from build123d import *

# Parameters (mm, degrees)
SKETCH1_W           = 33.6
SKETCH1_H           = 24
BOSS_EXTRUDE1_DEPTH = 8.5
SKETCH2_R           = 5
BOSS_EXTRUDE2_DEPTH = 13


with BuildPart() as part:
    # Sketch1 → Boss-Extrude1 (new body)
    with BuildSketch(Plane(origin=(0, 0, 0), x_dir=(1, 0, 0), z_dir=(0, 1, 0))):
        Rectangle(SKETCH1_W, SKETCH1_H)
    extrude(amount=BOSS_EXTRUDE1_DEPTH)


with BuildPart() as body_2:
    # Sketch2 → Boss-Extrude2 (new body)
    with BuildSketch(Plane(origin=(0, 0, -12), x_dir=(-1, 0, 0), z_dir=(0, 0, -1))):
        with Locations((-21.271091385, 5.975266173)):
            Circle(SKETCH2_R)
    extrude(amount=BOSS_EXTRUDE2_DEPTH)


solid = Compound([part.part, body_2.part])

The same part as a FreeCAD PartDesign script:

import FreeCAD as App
import Part
import Sketcher
from FreeCAD import Vector
Q = App.Units.Quantity

doc = App.newDocument("Part")
body = doc.addObject("PartDesign::Body", "Body")

# Sketch on XZ plane
sketch1 = doc.addObject("Sketcher::SketchObject", "Sketch")
body.addObject(sketch1)
sketch1.AttachmentSupport = (doc.XZ_Plane, [""])
sketch1.MapMode = "FlatFace"
sketch1.addGeometry([
    Part.LineSegment(Vector(-17, -12, 0), Vector(-17, 12, 0)),
    Part.LineSegment(Vector(-17, 12, 0), Vector(17, 12, 0)),
    Part.LineSegment(Vector(17, 12, 0), Vector(17, -12, 0)),
    Part.LineSegment(Vector(17, -12, 0), Vector(-17, -12, 0)),
], False)
sketch1.addConstraint([
    Sketcher.Constraint("Coincident", 0, 2, 1, 1),
    Sketcher.Constraint("Coincident", 1, 2, 2, 1),
    Sketcher.Constraint("Coincident", 2, 2, 3, 1),
    Sketcher.Constraint("Coincident", 3, 2, 0, 1),
    Sketcher.Constraint("Vertical", 0),
    Sketcher.Constraint("Horizontal", 1),
    Sketcher.Constraint("Vertical", 2),
    Sketcher.Constraint("Horizontal", 3),
    Sketcher.Constraint("Symmetric", 0, 2, 2, 2, -1, 1),
    Sketcher.Constraint("DistanceY", 0, 1, 0, 2, Q("24 mm")),
    Sketcher.Constraint("DistanceX", 1, 1, 1, 2, Q("33.6 mm")),
])
pad1 = doc.addObject("PartDesign::Pad", "Pad")
body.addObject(pad1)
pad1.Profile = sketch1
pad1.Length = 8.5
pad1.Reversed = True
body2 = doc.addObject("PartDesign::Body", "Body001")

# Sketch on XY plane
sketch2 = doc.addObject("Sketcher::SketchObject", "Sketch001")
body2.addObject(sketch2)
sketch2.AttachmentSupport = (doc.getObject("XY_Plane001"), [""])
sketch2.MapMode = "FlatFace"
sketch2.AttachmentOffset = App.Placement(Vector(0, 0, -12), App.Rotation())
sketch2.addGeometry(Part.Circle(Vector(21, 6, 0), Vector(0, 0, 1), 5), False)
sketch2.addConstraint([
    Sketcher.Constraint("Diameter", 0, Q("10 mm")),
    Sketcher.Constraint("DistanceX", -1, 1, 0, 3, Q("21.271091 mm")),
    Sketcher.Constraint("DistanceY", -1, 1, 0, 3, Q("5.975266 mm")),
])
pad2 = doc.addObject("PartDesign::Pad", "Pad001")
body2.addObject(pad2)
pad2.Profile = sketch2
pad2.Length = 13
pad2.Reversed = True

doc.recompute()
